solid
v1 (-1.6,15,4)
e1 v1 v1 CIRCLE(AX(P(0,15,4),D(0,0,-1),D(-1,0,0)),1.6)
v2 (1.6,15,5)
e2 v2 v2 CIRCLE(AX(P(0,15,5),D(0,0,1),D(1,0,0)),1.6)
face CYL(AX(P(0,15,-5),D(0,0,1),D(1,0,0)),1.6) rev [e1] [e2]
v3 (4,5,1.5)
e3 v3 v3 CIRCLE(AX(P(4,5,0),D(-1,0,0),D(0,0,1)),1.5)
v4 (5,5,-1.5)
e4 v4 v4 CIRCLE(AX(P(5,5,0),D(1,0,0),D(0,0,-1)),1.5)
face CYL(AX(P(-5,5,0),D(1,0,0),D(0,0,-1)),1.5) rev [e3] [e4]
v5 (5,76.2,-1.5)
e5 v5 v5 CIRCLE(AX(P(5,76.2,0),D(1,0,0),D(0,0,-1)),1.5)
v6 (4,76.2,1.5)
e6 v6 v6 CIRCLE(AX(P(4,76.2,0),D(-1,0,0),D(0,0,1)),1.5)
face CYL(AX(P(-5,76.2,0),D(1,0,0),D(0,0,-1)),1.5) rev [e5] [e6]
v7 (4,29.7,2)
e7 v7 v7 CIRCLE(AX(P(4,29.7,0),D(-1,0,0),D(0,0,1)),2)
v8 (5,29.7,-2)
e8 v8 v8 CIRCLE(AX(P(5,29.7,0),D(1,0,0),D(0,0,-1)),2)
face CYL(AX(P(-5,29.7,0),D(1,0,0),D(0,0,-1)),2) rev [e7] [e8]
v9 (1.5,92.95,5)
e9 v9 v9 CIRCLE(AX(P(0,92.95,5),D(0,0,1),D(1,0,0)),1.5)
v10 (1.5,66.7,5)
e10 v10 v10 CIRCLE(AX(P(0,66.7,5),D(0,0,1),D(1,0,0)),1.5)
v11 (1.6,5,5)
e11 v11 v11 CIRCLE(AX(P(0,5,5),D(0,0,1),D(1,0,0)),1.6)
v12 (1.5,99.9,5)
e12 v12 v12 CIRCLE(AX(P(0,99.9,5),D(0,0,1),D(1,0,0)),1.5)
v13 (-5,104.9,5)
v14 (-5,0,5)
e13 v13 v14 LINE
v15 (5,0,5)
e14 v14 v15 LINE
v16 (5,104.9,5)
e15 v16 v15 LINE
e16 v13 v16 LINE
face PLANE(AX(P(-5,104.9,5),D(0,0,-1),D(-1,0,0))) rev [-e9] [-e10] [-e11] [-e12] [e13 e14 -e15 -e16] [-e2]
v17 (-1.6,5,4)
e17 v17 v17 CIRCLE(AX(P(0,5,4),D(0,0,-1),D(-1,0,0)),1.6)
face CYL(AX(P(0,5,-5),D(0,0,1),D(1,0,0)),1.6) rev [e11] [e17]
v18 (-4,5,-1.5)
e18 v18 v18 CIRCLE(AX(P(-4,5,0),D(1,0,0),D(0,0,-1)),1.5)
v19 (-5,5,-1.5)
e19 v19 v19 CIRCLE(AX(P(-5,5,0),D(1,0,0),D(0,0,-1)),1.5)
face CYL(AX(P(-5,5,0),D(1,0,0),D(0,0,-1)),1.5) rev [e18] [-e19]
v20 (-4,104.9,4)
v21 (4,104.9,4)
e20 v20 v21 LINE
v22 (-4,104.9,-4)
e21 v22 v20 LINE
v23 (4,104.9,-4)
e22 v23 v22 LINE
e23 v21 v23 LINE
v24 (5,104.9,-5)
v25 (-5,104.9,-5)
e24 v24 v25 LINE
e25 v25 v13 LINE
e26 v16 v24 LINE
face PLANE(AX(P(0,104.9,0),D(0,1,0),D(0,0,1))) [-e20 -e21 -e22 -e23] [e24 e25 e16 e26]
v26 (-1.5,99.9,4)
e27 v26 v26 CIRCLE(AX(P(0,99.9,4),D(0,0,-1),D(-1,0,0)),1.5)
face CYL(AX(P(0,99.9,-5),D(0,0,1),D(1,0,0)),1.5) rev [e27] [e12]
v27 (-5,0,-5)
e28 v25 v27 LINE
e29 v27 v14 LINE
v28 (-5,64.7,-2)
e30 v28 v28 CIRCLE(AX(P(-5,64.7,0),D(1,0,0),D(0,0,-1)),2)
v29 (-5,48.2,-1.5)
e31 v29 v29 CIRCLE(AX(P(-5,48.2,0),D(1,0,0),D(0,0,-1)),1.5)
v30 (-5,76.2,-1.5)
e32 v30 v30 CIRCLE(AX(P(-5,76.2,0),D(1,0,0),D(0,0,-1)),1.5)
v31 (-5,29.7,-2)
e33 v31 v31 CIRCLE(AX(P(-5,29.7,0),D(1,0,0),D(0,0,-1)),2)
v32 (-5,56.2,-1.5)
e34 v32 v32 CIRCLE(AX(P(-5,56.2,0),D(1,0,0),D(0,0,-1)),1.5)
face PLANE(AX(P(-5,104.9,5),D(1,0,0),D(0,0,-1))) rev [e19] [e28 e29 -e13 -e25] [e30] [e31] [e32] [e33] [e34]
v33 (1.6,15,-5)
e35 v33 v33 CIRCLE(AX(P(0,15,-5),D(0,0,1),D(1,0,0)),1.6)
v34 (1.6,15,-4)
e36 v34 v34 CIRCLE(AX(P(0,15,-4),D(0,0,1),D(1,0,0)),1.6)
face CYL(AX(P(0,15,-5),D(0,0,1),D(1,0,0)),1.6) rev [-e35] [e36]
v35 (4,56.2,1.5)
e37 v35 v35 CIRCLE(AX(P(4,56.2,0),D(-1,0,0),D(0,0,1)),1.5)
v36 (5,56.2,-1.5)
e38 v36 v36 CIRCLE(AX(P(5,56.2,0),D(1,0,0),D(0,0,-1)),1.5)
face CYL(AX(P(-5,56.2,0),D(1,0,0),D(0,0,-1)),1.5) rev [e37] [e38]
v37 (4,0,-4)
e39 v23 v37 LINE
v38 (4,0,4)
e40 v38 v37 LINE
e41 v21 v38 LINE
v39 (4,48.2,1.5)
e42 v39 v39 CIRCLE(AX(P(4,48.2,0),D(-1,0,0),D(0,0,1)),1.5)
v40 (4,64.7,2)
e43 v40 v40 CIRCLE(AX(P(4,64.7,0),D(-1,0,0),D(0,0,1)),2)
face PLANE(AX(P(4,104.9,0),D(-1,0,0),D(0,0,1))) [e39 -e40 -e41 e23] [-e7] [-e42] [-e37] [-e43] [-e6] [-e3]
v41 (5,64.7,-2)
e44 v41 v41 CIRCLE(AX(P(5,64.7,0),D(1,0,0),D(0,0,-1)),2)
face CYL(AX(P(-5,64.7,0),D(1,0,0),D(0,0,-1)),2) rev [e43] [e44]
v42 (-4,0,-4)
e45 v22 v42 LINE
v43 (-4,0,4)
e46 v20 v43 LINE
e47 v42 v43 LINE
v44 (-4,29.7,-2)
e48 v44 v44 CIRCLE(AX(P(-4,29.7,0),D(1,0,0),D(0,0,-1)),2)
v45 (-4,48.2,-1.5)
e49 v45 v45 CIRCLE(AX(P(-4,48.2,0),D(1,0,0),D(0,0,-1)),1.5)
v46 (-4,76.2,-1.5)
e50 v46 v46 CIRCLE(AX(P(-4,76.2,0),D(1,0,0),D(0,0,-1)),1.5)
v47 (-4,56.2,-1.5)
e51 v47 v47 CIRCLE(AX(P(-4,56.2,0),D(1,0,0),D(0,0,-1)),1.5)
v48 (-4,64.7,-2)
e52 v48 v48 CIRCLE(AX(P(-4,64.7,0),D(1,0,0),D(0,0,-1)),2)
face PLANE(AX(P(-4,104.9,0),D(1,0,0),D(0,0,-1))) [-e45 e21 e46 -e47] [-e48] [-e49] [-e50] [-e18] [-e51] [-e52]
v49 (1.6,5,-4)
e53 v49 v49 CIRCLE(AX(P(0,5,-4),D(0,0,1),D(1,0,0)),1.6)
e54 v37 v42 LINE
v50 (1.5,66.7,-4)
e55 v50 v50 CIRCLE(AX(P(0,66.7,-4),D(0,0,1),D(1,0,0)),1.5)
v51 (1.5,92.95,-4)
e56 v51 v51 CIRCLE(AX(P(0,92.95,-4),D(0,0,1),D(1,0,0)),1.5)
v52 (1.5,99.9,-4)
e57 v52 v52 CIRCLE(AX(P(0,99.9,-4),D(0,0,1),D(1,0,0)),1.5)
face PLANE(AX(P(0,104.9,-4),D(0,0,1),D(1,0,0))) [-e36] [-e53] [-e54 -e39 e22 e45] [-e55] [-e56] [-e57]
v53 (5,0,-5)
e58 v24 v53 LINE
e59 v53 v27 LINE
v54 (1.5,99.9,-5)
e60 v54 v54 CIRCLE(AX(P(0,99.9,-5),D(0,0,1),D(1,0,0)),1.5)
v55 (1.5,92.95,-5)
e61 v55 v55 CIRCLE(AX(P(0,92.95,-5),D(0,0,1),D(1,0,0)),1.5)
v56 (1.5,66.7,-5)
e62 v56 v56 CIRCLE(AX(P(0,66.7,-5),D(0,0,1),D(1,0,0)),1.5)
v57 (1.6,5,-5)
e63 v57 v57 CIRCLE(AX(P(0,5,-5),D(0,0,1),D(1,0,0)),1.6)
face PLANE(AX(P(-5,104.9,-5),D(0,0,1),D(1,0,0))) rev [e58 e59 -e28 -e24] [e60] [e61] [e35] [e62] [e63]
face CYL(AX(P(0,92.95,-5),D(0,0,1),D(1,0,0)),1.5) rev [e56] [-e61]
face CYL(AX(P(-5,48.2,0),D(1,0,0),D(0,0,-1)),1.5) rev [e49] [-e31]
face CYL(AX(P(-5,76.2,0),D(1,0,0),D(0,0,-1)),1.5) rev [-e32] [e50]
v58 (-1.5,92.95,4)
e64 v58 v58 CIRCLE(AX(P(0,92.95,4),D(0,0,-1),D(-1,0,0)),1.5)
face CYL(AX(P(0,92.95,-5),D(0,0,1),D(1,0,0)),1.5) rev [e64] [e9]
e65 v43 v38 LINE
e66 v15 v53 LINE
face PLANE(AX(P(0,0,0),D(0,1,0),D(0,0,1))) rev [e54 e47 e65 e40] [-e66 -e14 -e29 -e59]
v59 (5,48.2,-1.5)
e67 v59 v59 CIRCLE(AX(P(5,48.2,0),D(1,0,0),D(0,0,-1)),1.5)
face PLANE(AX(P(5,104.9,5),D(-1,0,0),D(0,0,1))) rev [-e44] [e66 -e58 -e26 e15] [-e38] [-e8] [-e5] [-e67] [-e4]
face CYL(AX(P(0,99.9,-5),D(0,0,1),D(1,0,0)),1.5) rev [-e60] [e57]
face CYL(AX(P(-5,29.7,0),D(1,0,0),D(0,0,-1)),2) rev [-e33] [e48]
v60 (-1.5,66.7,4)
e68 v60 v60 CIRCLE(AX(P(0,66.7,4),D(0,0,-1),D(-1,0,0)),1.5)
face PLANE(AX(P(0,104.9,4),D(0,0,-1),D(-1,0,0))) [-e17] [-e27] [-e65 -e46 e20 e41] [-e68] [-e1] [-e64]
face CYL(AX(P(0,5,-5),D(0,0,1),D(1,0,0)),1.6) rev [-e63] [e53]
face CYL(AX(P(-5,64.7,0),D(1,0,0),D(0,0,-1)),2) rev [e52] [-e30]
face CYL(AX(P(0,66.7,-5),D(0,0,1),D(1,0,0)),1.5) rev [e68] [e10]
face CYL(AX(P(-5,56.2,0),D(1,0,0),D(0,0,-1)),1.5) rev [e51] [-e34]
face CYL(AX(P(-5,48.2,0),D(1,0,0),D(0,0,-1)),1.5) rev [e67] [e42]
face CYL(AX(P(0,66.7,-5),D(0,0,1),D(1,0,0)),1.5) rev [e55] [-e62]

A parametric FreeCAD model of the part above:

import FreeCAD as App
import Part
import Sketcher

V = App.Vector
Q = App.Units.Quantity

doc = App.newDocument("Part")
body = doc.addObject("PartDesign::Body", "Body")

# Sketch on XZ plane
sketch1 = body.newObject("Sketcher::SketchObject", "Sketch")
sketch1.AttachmentSupport = (doc.getObject("XZ_Plane"), [""])
sketch1.MapMode = "FlatFace"
sketch1.addGeometry(Part.LineSegment(V(-5, -5, 0), V(-5, 5, 0)), False)
sketch1.addGeometry(Part.LineSegment(V(-5, 5, 0), V(5, 5, 0)), False)
sketch1.addGeometry(Part.LineSegment(V(5, 5, 0), V(5, -5, 0)), False)
sketch1.addGeometry(Part.LineSegment(V(5, -5, 0), V(-5, -5, 0)), False)
sketch1.addGeometry(Part.LineSegment(V(4, 4, 0), V(-4, 4, 0)), False)
sketch1.addGeometry(Part.LineSegment(V(-4, 4, 0), V(-4, -4, 0)), False)
sketch1.addGeometry(Part.LineSegment(V(-4, -4, 0), V(4, -4, 0)), False)
sketch1.addGeometry(Part.LineSegment(V(4, -4, 0), V(4, 4, 0)), False)
sketch1.addConstraint(Sketcher.Constraint("Coincident", 0, 2, 1, 1))
sketch1.addConstraint(Sketcher.Constraint("Coincident", 1, 2, 2, 1))
sketch1.addConstraint(Sketcher.Constraint("Coincident", 2, 2, 3, 1))
sketch1.addConstraint(Sketcher.Constraint("Coincident", 3, 2, 0, 1))
sketch1.addConstraint(Sketcher.Constraint("Coincident", 4, 2, 5, 1))
sketch1.addConstraint(Sketcher.Constraint("Coincident", 5, 2, 6, 1))
sketch1.addConstraint(Sketcher.Constraint("Coincident", 6, 2, 7, 1))
sketch1.addConstraint(Sketcher.Constraint("Coincident", 7, 2, 4, 1))
sketch1.addConstraint(Sketcher.Constraint("Vertical", 0))
sketch1.addConstraint(Sketcher.Constraint("Horizontal", 1))
sketch1.addConstraint(Sketcher.Constraint("Vertical", 2))
sketch1.addConstraint(Sketcher.Constraint("Horizontal", 3))
sketch1.addConstraint(Sketcher.Constraint("Horizontal", 4))
sketch1.addConstraint(Sketcher.Constraint("Vertical", 5))
sketch1.addConstraint(Sketcher.Constraint("Horizontal", 6))
sketch1.addConstraint(Sketcher.Constraint("Vertical", 7))
sketch1.addConstraint(Sketcher.Constraint("Symmetric", 0, 2, 2, 2, -1, 1))
sketch1.addConstraint(Sketcher.Constraint("Symmetric", 4, 2, 6, 2, -1, 1))
sketch1.addConstraint(Sketcher.Constraint("Equal", 3, 0))
sketch1.addConstraint(Sketcher.Constraint("Equal", 6, 5))
sketch1.addConstraint(Sketcher.Constraint("DistanceX", 1, 1, 1, 2, Q("10 mm")))
sketch1.addConstraint(Sketcher.Constraint("DistanceX", 4, 2, 4, 1, Q("8 mm")))
pad1 = body.newObject("PartDesign::Pad", "Pad")
pad1.Profile = sketch1
pad1.Length = 104.9
pad1.Reversed = True

# Sketch on XY plane
sketch2 = body.newObject("Sketcher::SketchObject", "Sketch001")
sketch2.AttachmentSupport = (doc.getObject("XY_Plane"), [""])
sketch2.MapMode = "FlatFace"
sketch2.AttachmentOffset = App.Placement(V(0, 0, 5), App.Rotation())
sketch2.addGeometry(Part.Circle(V(0, 5, 0), V(0, 0, 1), 1.6), False)
sketch2.addGeometry(Part.Circle(V(0, 15, 0), V(0, 0, 1), 1.6), False)
sketch2.addGeometry(Part.Circle(V(0, 93, 0), V(0, 0, 1), 1.5), False)
sketch2.addGeometry(Part.Circle(V(0, 66.7, 0), V(0, 0, 1), 1.5), False)
sketch2.addGeometry(Part.Circle(V(0, 99.9, 0), V(0, 0, 1), 1.5), False)
sketch2.addConstraint(Sketcher.Constraint("Equal", 0, 1))
sketch2.addConstraint(Sketcher.Constraint("Equal", 2, 3))
sketch2.addConstraint(Sketcher.Constraint("Equal", 3, 4))
sketch2.addConstraint(Sketcher.Constraint("PointOnObject", 0, 3, -2))
sketch2.addConstraint(Sketcher.Constraint("PointOnObject", 1, 3, -2))
sketch2.addConstraint(Sketcher.Constraint("PointOnObject", 2, 3, -2))
sketch2.addConstraint(Sketcher.Constraint("PointOnObject", 3, 3, -2))
sketch2.addConstraint(Sketcher.Constraint("PointOnObject", 4, 3, -2))
sketch2.addConstraint(Sketcher.Constraint("Diameter", 2, Q("3 mm")))
sketch2.addConstraint(Sketcher.Constraint("Diameter", 0, Q("3.2 mm")))
sketch2.addConstraint(Sketcher.Constraint("DistanceY", -1, 1, 0, 3, Q("5 mm")))
sketch2.addConstraint(Sketcher.Constraint("DistanceY", -1, 1, 1, 3, Q("15 mm")))
sketch2.addConstraint(Sketcher.Constraint("DistanceY", -1, 1, 3, 3, Q("66.7 mm")))
sketch2.addConstraint(Sketcher.Constraint("DistanceY", -1, 1, 4, 3, Q("99.9 mm")))
sketch2.addConstraint(Sketcher.Constraint("DistanceY", -1, 1, 2, 3, Q("92.95 mm")))
pocket1 = body.newObject("PartDesign::Pocket", "Pocket")
pocket1.Profile = sketch2
pocket1.Type = "ThroughAll"

# Sketch on YZ plane
sketch3 = body.newObject("Sketcher::SketchObject", "Sketch002")
sketch3.AttachmentSupport = (doc.getObject("YZ_Plane"), [""])
sketch3.MapMode = "FlatFace"
sketch3.AttachmentOffset = App.Placement(V(0, 0, 5), App.Rotation())
sketch3.addGeometry(Part.Circle(V(76.2, 0, 0), V(0, 0, 1), 1.5), False)
sketch3.addGeometry(Part.Circle(V(5, 0, 0), V(0, 0, 1), 1.5), False)
sketch3.addGeometry(Part.Circle(V(64.7, 0, 0), V(0, 0, 1), 2), False)
sketch3.addGeometry(Part.Circle(V(29.7, 0, 0), V(0, 0, 1), 2), False)
sketch3.addGeometry(Part.Circle(V(48.2, 0, 0), V(0, 0, 1), 1.5), False)
sketch3.addGeometry(Part.Circle(V(56.2, 0, 0), V(0, 0, 1), 1.5), False)
sketch3.addConstraint(Sketcher.Constraint("Equal", 0, 1))
sketch3.addConstraint(Sketcher.Constraint("Equal", 2, 3))
sketch3.addConstraint(Sketcher.Constraint("Equal", 1, 4))
sketch3.addConstraint(Sketcher.Constraint("Equal", 4, 5))
sketch3.addConstraint(Sketcher.Constraint("PointOnObject", 0, 3, -1))
sketch3.addConstraint(Sketcher.Constraint("PointOnObject", 1, 3, -1))
sketch3.addConstraint(Sketcher.Constraint("PointOnObject", 2, 3, -1))
sketch3.addConstraint(Sketcher.Constraint("PointOnObject", 3, 3, -1))
sketch3.addConstraint(Sketcher.Constraint("PointOnObject", 4, 3, -1))
sketch3.addConstraint(Sketcher.Constraint("PointOnObject", 5, 3, -1))
sketch3.addConstraint(Sketcher.Constraint("Diameter", 0, Q("3 mm")))
sketch3.addConstraint(Sketcher.Constraint("Diameter", 2, Q("4 mm")))
sketch3.addConstraint(Sketcher.Constraint("DistanceX", -1, 1, 1, 3, Q("5 mm")))
sketch3.addConstraint(Sketcher.Constraint("DistanceX", 3, 3, 2, 3, Q("35 mm")))
sketch3.addConstraint(Sketcher.Constraint("DistanceX", 4, 3, 0, 3, Q("28 mm")))
sketch3.addConstraint(Sketcher.Constraint("DistanceX", 4, 3, 5, 3, Q("8 mm")))
sketch3.addConstraint(Sketcher.Constraint("DistanceX", -1, 1, 0, 3, Q("76.2 mm")))
sketch3.addConstraint(Sketcher.Constraint("DistanceX", -1, 1, 2, 3, Q("64.7 mm")))
pocket2 = body.newObject("PartDesign::Pocket", "Pocket001")
pocket2.Profile = sketch3
pocket2.Type = "ThroughAll"

doc.recompute()
